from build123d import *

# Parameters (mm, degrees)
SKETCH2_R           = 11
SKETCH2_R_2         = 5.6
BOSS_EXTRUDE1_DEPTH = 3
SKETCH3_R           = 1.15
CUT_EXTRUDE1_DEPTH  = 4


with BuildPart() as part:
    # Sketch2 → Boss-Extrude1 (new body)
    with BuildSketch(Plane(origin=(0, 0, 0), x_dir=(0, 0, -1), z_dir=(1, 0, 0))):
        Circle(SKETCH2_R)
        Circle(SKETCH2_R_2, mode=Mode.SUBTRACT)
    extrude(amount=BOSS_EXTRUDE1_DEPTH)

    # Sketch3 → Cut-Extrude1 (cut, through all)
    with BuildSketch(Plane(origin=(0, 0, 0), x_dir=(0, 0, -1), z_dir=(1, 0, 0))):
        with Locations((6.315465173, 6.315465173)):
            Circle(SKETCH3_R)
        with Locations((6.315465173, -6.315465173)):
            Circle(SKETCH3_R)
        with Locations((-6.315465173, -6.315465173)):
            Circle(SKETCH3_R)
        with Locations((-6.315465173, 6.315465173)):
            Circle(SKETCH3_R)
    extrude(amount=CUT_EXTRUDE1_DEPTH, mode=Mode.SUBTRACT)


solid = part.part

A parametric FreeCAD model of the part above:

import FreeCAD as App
import Part
import Sketcher
Q = App.Units.Quantity

doc = App.newDocument("Part")
body = doc.addObject("PartDesign::Body", "Body")

sketch1 = body.newObject("Sketcher::SketchObject", "Sketch")
sketch1.AttachmentSupport = (doc.getObject("YZ_Plane"), [""])
sketch1.MapMode = "FlatFace"
sketch1.addGeometry([
    Part.Circle(App.Vector(0, 0, 0), App.Vector(0, 0, 1), 11),
    Part.Circle(App.Vector(0, 0, 0), App.Vector(0, 0, 1), 6),
], False)
sketch1.addConstraint([
    Sketcher.Constraint("Coincident", 0, 3, -1, 1),
    Sketcher.Constraint("Coincident", 1, 3, -1, 1),
    Sketcher.Constraint("Diameter", 0, Q("22 mm")),
    Sketcher.Constraint("Diameter", 1, Q("11.2 mm")),
])
pad1 = body.newObject("PartDesign::Pad", "Pad")
pad1.Profile = sketch1
pad1.Length = 3

sketch2 = body.newObject("Sketcher::SketchObject", "Sketch001")
sketch2.AttachmentSupport = (doc.getObject("YZ_Plane"), [""])
sketch2.MapMode = "FlatFace"
sketch2.addGeometry([
    Part.Circle(App.Vector(6.3, -6.3, 0), App.Vector(0, 0, 1), 1.1),
    Part.Circle(App.Vector(-6.3, -6.3, 0), App.Vector(0, 0, 1), 1.1),
    Part.Circle(App.Vector(-6.3, 6.3, 0), App.Vector(0, 0, 1), 1.1),
    Part.Circle(App.Vector(6.3, 6.3, 0), App.Vector(0, 0, 1), 1.1),
], False)
sketch2.addConstraint([
    Sketcher.Constraint("Equal", 0, 1),
    Sketcher.Constraint("Equal", 1, 2),
    Sketcher.Constraint("Equal", 2, 3),
    Sketcher.Constraint("Symmetric", 0, 3, 2, 3, -1, 1),
    Sketcher.Constraint("Symmetric", 1, 3, 3, 3, -1, 1),
    Sketcher.Constraint("Symmetric", 0, 3, 1, 3, -2),
    Sketcher.Constraint("Diameter", 0, Q("2.3 mm")),
    Sketcher.Constraint("DistanceX", 1, 3, 0, 3, Q("12.63093 mm")),
    Sketcher.Constraint("DistanceY", 1, 3, 2, 3, Q("12.63093 mm")),
])
pocket1 = body.newObject("PartDesign::Pocket", "Pocket")
pocket1.Profile = sketch2
pocket1.Type = "ThroughAll"
pocket1.Reversed = True

doc.recompute()
